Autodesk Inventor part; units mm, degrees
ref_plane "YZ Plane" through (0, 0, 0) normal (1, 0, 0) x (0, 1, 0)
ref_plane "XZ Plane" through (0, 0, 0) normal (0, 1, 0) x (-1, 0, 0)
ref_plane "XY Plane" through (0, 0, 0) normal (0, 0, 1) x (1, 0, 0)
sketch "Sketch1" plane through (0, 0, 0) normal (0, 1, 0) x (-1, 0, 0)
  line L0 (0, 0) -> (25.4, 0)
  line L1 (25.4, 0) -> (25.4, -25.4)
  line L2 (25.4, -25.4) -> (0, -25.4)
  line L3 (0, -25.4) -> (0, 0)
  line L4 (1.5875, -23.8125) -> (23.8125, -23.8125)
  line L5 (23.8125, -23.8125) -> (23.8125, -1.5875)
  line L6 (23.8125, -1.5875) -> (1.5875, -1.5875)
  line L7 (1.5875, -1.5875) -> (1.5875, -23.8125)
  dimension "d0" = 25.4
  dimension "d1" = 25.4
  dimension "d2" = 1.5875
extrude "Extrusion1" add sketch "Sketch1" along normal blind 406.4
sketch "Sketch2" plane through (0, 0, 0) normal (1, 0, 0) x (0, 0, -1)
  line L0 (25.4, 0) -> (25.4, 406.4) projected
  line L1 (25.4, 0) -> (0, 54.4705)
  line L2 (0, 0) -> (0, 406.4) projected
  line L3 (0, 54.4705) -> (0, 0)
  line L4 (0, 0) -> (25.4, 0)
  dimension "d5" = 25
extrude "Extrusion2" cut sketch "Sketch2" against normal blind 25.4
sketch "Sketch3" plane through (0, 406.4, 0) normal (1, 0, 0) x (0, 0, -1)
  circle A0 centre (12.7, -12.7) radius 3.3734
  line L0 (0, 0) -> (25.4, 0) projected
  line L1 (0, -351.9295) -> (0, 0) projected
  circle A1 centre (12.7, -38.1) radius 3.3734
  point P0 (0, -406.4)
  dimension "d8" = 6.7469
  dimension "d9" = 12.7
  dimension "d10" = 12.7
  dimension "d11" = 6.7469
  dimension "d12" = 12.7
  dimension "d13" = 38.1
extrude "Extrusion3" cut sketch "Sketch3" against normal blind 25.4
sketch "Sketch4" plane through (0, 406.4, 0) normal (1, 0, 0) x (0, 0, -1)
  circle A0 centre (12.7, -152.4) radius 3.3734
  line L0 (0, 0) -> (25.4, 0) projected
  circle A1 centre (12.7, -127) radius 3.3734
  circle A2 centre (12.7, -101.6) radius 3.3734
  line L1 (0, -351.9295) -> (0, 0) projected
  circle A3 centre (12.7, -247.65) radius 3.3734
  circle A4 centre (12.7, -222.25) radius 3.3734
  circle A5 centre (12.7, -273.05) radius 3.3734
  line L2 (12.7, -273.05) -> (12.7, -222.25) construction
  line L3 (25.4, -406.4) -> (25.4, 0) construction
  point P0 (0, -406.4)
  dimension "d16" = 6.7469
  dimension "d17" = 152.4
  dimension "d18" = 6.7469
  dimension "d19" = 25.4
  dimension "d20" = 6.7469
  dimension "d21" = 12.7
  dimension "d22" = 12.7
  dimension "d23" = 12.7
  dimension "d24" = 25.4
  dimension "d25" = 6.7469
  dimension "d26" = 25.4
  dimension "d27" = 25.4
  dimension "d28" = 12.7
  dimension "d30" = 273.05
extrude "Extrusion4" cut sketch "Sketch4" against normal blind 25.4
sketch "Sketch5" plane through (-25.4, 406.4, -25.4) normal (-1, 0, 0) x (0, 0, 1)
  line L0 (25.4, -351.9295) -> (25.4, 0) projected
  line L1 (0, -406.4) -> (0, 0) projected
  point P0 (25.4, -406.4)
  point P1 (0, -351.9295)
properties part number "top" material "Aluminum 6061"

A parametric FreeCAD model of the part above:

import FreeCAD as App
import Part
import Sketcher
Q = App.Units.Quantity


def add_polygon(sketch, points):
    """Adds a closed chain of lines whose ends are joined by coincident constraints."""
    first, n = sketch.GeometryCount, len(points)
    for a, b in zip(points, points[1:] + points[:1]):
        sketch.addGeometry(Part.LineSegment(App.Vector(*a, 0), App.Vector(*b, 0)), False)
    for i in range(n):
        sketch.addConstraint(Sketcher.Constraint("Coincident", first + i, 2, first + (i + 1) % n, 1))

doc = App.newDocument("Part")
body = doc.addObject("PartDesign::Body", "Body")

# Sketch on XZ plane
sketch1 = doc.addObject("Sketcher::SketchObject", "Sketch")
body.addObject(sketch1)
sketch1.AttachmentSupport = (doc.XZ_Plane, [""])
sketch1.MapMode = "FlatFace"
add_polygon(sketch1, [(-25, 0), (0, 0), (0, -25), (-25, -25)])  # lines 0-3
add_polygon(sketch1, [(-24, -24), (-2, -24), (-2, -2), (-24, -2)])  # lines 4-7
sketch1.addConstraint([
    Sketcher.Constraint("Horizontal", 0),
    Sketcher.Constraint("Vertical", 1),
    Sketcher.Constraint("Horizontal", 2),
    Sketcher.Constraint("Vertical", 3),
    Sketcher.Constraint("Horizontal", 4),
    Sketcher.Constraint("Vertical", 5),
    Sketcher.Constraint("Horizontal", 6),
    Sketcher.Constraint("Vertical", 7),
    Sketcher.Constraint("Coincident", 0, 2, -1, 1),
    Sketcher.Constraint("Equal", 2, 1),
    Sketcher.Constraint("Equal", 6, 5),
    Sketcher.Constraint("DistanceX", 0, 1, 0, 2, Q("1 in")),
    Sketcher.Constraint("DistanceX", 4, 2, -1, 1, Q("0.0625 in")),
    Sketcher.Constraint("DistanceY", 5, 2, -1, 1, Q("0.0625 in")),
    Sketcher.Constraint("DistanceY", 1, 2, 4, 2, Q("0.0625 in")),
])
pad1 = doc.addObject("PartDesign::Pad", "Pad")
body.addObject(pad1)
pad1.Profile = sketch1
pad1.Length = Q("16 in")
pad1.Reversed = True

# Sketch on YZ plane
sketch2 = doc.addObject("Sketcher::SketchObject", "Sketch001")
body.addObject(sketch2)
sketch2.AttachmentSupport = (doc.YZ_Plane, [""])
sketch2.MapMode = "FlatFace"
add_polygon(sketch2, [(0, 0), (0, -25), (54, 0)])  # lines 0-2
sketch2.addConstraint([
    Sketcher.Constraint("Vertical", 0),
    Sketcher.Constraint("Horizontal", 2),
    Sketcher.Constraint("Coincident", 2, 2, -1, 1),
    Sketcher.Constraint("Angle", 1, Q("25 deg")),
    Sketcher.Constraint("DistanceY", 0, 2, 0, 1, Q("1 in")),
])
pocket1 = doc.addObject("PartDesign::Pocket", "Pocket")
body.addObject(pocket1)
pocket1.Profile = sketch2
pocket1.Length = Q("1 in")

# Sketch on YZ plane
sketch3 = doc.addObject("Sketcher::SketchObject", "Sketch002")
body.addObject(sketch3)
sketch3.AttachmentSupport = (doc.YZ_Plane, [""])
sketch3.MapMode = "FlatFace"
sketch3.addGeometry([
    Part.Circle(App.Vector(393.7, -12.7, 0), App.Vector(0, 0, 1), 3.4),
    Part.Circle(App.Vector(368.3, -12.7, 0), App.Vector(0, 0, 1), 3.4),
], False)
sketch3.addConstraint([
    Sketcher.Constraint("Equal", 0, 1),
    Sketcher.Constraint("Horizontal", 0, 3, 1, 3),
    Sketcher.Constraint("Diameter", 0, Q("0.265622 in")),
    Sketcher.Constraint("DistanceY", 0, 3, -1, 1, Q("0.5 in")),
    Sketcher.Constraint("DistanceX", 1, 3, 0, 3, Q("1 in")),
    Sketcher.Constraint("DistanceX", -1, 1, 0, 3, Q("15.5 in")),
])
pocket2 = doc.addObject("PartDesign::Pocket", "Pocket001")
body.addObject(pocket2)
pocket2.Profile = sketch3
pocket2.Length = Q("1 in")

# Sketch on YZ plane
sketch4 = doc.addObject("Sketcher::SketchObject", "Sketch003")
body.addObject(sketch4)
sketch4.AttachmentSupport = (doc.YZ_Plane, [""])
sketch4.MapMode = "FlatFace"
sketch4.addGeometry([
    Part.Circle(App.Vector(254, -12.7, 0), App.Vector(0, 0, 1), 3.4),  # 0
    Part.Circle(App.Vector(279.4, -12.7, 0), App.Vector(0, 0, 1), 3.4),  # 1
    Part.Circle(App.Vector(304.8, -12.7, 0), App.Vector(0, 0, 1), 3.4),  # 2
    Part.Circle(App.Vector(158.8, -12.7, 0), App.Vector(0, 0, 1), 3.4),  # 3
    Part.Circle(App.Vector(184.2, -12.7, 0), App.Vector(0, 0, 1), 3.4),  # 4
    Part.Circle(App.Vector(133.3, -12.7, 0), App.Vector(0, 0, 1), 3.4),  # 5
], False)
sketch4.addConstraint([
    Sketcher.Constraint("Equal", 0, 1),
    Sketcher.Constraint("Equal", 1, 2),
    Sketcher.Constraint("Equal", 2, 3),
    Sketcher.Constraint("Equal", 3, 4),
    Sketcher.Constraint("Equal", 4, 5),
    Sketcher.Constraint("Horizontal", 0, 3, 1, 3),
    Sketcher.Constraint("Horizontal", 1, 3, 2, 3),
    Sketcher.Constraint("Horizontal", 2, 3, 3, 3),
    Sketcher.Constraint("Horizontal", 3, 3, 4, 3),
    Sketcher.Constraint("Horizontal", 4, 3, 5, 3),
    Sketcher.Constraint("Diameter", 0, Q("0.265622 in")),
    Sketcher.Constraint("DistanceX", 0, 3, 1, 3, Q("1 in")),
    Sketcher.Constraint("DistanceX", 1, 3, 2, 3, Q("1 in")),
    Sketcher.Constraint("DistanceX", 3, 3, 4, 3, Q("1 in")),
    Sketcher.Constraint("DistanceX", 5, 3, 3, 3, Q("1 in")),
    Sketcher.Constraint("DistanceY", 0, 3, -1, 1, Q("0.5 in")),
    Sketcher.Constraint("DistanceX", -1, 1, 0, 3, Q("10 in")),
    Sketcher.Constraint("DistanceX", -1, 1, 3, 3, Q("6.25 in")),
])
pocket3 = doc.addObject("PartDesign::Pocket", "Pocket002")
body.addObject(pocket3)
pocket3.Profile = sketch4
pocket3.Length = Q("1 in")

doc.recompute()
